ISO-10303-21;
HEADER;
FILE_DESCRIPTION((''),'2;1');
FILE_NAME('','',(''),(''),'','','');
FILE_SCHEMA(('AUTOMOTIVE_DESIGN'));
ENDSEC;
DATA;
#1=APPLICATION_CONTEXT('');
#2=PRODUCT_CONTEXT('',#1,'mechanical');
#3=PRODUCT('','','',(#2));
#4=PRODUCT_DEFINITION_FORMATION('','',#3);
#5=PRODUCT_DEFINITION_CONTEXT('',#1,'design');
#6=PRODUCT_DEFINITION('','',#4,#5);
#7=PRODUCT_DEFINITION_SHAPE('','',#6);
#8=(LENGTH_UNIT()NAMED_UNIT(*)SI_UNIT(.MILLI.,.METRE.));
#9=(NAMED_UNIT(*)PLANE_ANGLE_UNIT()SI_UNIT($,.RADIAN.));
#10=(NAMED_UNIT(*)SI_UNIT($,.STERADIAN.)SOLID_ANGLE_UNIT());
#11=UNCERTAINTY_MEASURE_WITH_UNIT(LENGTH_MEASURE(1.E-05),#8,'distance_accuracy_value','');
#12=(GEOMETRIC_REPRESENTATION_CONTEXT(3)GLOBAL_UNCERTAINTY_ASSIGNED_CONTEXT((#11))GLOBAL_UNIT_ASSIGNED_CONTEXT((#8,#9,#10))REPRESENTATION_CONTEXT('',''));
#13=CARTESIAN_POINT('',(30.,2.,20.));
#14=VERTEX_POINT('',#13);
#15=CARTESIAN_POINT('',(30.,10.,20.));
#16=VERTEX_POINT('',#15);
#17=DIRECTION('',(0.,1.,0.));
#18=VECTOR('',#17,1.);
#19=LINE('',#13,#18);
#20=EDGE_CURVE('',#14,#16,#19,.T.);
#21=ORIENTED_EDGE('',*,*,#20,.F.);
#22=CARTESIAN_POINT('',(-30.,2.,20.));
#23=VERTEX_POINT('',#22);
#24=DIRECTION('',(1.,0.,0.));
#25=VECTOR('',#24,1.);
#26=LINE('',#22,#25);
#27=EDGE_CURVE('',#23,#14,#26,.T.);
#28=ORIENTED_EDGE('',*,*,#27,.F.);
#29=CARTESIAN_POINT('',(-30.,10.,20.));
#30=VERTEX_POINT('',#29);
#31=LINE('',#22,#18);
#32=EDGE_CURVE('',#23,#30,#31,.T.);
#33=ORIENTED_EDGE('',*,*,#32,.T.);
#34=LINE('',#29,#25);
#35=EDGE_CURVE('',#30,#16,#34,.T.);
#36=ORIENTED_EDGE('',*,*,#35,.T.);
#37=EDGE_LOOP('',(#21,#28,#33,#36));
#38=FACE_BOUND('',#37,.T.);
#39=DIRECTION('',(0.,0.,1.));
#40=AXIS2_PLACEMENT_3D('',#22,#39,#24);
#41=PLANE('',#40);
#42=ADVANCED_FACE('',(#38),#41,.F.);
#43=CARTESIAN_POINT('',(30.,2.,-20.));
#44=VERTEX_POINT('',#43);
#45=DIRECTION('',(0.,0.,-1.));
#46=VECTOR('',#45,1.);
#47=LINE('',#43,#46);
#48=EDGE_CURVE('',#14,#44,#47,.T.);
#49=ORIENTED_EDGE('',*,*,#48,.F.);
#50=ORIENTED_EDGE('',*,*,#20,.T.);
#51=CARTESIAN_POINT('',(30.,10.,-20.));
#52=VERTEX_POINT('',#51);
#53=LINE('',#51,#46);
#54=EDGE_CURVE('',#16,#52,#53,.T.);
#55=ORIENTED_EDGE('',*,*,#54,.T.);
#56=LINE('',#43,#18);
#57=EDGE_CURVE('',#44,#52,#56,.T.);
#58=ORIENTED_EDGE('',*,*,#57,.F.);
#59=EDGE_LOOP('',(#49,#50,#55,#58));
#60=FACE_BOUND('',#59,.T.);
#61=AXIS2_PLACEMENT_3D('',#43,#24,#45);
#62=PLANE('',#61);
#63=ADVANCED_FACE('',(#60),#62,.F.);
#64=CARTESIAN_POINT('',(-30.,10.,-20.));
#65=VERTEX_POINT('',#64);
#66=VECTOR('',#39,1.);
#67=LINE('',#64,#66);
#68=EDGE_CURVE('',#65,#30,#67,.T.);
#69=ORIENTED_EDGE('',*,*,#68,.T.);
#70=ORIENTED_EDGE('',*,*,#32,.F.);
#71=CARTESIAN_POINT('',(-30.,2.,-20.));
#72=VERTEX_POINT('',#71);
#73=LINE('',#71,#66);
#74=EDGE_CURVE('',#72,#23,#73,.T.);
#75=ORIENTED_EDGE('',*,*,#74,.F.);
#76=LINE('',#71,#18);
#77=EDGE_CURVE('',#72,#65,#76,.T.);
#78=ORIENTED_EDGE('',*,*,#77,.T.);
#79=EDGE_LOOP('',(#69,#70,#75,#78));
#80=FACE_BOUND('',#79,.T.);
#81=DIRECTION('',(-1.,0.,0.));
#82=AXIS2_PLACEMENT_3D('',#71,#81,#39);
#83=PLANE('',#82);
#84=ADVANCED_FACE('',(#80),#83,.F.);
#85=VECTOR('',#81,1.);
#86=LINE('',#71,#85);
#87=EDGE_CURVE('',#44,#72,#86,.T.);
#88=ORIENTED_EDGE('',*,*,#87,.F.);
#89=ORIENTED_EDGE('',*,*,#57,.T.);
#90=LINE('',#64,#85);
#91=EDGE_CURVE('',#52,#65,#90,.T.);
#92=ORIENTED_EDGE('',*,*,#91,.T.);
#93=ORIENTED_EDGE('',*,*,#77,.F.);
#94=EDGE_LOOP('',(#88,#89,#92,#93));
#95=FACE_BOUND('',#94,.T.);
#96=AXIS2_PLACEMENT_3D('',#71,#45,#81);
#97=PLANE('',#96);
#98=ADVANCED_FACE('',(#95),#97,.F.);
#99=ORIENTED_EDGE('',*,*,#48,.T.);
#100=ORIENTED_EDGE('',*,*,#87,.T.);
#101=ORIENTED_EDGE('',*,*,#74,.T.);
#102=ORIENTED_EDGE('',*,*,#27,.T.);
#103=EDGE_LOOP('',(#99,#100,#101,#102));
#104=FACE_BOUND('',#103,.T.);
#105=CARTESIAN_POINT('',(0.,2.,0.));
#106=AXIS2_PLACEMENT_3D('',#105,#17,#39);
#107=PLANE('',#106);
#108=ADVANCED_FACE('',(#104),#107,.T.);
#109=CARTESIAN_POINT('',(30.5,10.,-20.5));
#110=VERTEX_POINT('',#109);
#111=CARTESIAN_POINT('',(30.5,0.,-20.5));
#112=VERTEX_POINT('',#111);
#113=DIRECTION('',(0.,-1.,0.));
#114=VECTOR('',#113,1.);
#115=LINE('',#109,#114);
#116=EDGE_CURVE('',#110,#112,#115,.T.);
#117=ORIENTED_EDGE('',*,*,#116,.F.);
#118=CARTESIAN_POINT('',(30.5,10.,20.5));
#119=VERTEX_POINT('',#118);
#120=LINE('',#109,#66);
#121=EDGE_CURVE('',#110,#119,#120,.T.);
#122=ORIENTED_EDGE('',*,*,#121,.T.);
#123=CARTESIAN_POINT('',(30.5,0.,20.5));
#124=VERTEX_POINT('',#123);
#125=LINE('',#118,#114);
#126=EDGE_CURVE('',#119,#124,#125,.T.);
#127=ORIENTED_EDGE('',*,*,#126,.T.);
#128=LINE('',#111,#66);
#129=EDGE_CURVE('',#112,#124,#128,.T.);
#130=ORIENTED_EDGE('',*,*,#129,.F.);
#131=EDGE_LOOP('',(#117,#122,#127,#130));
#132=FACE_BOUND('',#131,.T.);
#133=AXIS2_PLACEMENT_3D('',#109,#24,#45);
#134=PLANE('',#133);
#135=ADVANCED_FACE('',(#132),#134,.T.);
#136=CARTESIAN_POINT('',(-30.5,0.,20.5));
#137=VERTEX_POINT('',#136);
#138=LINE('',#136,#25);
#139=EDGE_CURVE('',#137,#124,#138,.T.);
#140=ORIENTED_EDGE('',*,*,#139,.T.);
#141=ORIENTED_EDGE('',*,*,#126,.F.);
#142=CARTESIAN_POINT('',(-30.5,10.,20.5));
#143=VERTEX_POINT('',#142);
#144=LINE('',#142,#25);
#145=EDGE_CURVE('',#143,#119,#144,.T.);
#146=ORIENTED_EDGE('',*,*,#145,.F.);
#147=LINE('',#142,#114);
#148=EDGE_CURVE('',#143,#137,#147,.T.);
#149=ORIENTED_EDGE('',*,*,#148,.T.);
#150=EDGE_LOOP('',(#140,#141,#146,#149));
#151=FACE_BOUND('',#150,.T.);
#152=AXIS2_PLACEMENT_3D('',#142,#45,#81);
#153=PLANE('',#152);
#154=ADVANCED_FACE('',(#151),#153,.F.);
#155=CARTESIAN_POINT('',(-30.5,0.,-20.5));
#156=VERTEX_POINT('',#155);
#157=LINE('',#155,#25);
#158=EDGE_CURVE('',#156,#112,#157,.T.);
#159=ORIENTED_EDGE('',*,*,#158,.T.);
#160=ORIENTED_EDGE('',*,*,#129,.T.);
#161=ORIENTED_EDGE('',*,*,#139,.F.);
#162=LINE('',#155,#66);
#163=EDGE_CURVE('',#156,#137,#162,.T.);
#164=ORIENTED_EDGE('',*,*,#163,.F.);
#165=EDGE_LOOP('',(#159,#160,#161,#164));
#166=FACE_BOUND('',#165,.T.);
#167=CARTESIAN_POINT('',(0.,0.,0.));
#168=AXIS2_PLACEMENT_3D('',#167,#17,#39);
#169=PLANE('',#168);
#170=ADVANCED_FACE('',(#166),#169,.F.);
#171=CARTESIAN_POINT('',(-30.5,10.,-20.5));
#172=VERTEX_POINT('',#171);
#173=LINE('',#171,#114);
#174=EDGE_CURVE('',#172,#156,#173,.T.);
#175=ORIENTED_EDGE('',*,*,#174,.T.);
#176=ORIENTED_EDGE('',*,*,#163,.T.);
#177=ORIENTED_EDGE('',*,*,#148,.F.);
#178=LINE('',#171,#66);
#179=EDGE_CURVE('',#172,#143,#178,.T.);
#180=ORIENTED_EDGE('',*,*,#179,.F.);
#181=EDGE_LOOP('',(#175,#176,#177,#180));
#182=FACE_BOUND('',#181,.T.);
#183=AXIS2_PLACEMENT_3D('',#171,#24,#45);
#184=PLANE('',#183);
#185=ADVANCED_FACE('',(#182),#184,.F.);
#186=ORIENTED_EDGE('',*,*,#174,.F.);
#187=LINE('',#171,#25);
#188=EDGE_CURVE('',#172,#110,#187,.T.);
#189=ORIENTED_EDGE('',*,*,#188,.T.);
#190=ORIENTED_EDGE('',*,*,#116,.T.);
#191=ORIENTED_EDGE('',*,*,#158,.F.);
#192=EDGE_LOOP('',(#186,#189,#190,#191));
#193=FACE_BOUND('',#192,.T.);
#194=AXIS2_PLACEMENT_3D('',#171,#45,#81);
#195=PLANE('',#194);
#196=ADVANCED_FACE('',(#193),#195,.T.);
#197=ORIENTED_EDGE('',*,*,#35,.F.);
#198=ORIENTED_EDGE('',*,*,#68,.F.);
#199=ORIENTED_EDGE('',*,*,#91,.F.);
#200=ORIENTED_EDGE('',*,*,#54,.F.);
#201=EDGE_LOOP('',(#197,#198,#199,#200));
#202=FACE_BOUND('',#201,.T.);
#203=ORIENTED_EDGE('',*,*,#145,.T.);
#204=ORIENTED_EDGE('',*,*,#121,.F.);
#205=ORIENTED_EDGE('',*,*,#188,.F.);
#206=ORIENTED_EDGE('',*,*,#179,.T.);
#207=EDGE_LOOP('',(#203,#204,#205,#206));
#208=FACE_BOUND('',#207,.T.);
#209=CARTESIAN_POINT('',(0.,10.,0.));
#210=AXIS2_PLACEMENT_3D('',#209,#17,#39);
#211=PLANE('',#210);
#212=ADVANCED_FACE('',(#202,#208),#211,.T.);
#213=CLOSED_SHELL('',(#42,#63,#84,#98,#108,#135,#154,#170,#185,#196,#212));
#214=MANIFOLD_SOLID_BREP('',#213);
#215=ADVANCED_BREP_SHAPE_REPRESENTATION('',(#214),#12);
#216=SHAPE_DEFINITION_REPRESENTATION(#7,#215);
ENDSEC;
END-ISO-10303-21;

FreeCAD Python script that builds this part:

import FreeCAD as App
import Part
import Sketcher

doc = App.newDocument("Part")
body = doc.addObject("PartDesign::Body", "Body")

# Sketch on XZ plane
sketch1 = body.newObject("Sketcher::SketchObject", "Sketch")
sketch1.AttachmentSupport = (doc.getObject("XZ_Plane"), [""])
sketch1.MapMode = "FlatFace"
sketch1.addGeometry([
    Part.LineSegment(App.Vector(-30, -20, 0), App.Vector(-30, 20, 0)),
    Part.LineSegment(App.Vector(-30, 20, 0), App.Vector(30, 20, 0)),
    Part.LineSegment(App.Vector(30, 20, 0), App.Vector(30, -20, 0)),
    Part.LineSegment(App.Vector(30, -20, 0), App.Vector(-30, -20, 0)),
], False)
sketch1.addConstraint([
    Sketcher.Constraint("Coincident", 0, 2, 1, 1),
    Sketcher.Constraint("Coincident", 1, 2, 2, 1),
    Sketcher.Constraint("Coincident", 2, 2, 3, 1),
    Sketcher.Constraint("Coincident", 3, 2, 0, 1),
    Sketcher.Constraint("Vertical", 0),
    Sketcher.Constraint("Horizontal", 1),
    Sketcher.Constraint("Vertical", 2),
    Sketcher.Constraint("Horizontal", 3),
    Sketcher.Constraint("Symmetric", 0, 2, 2, 2, -1, 1),
    Sketcher.Constraint("DistanceX", 1, 1, 1, 2, 61.0),
    Sketcher.Constraint("DistanceY", 0, 1, 0, 2, 41.0),
])
pad1 = body.newObject("PartDesign::Pad", "Pad")
pad1.Profile = sketch1
pad1.Length = 10
pad1.Reversed = True

# Sketch on XZ plane
sketch2 = body.newObject("Sketcher::SketchObject", "Sketch001")
sketch2.AttachmentSupport = (doc.getObject("XZ_Plane"), [""])
sketch2.MapMode = "FlatFace"
sketch2.AttachmentOffset = App.Placement(App.Vector(0, 0, -10), App.Rotation())
sketch2.addGeometry([
    Part.LineSegment(App.Vector(-30, -20, 0), App.Vector(-30, 20, 0)),
    Part.LineSegment(App.Vector(-30, 20, 0), App.Vector(30, 20, 0)),
    Part.LineSegment(App.Vector(30, 20, 0), App.Vector(30, -20, 0)),
    Part.LineSegment(App.Vector(30, -20, 0), App.Vector(-30, -20, 0)),
], False)
sketch2.addConstraint([
    Sketcher.Constraint("Coincident", 0, 2, 1, 1),
    Sketcher.Constraint("Coincident", 1, 2, 2, 1),
    Sketcher.Constraint("Coincident", 2, 2, 3, 1),
    Sketcher.Constraint("Coincident", 3, 2, 0, 1),
    Sketcher.Constraint("Vertical", 0),
    Sketcher.Constraint("Horizontal", 1),
    Sketcher.Constraint("Vertical", 2),
    Sketcher.Constraint("Horizontal", 3),
    Sketcher.Constraint("Symmetric", 0, 2, 2, 2, -1, 1),
    Sketcher.Constraint("DistanceX", 1, 1, 1, 2, 60.0),
    Sketcher.Constraint("DistanceY", 0, 1, 0, 2, 40.0),
])
pocket1 = body.newObject("PartDesign::Pocket", "Pocket")
pocket1.Profile = sketch2
pocket1.Length = 8
pocket1.Reversed = True

doc.recompute()
